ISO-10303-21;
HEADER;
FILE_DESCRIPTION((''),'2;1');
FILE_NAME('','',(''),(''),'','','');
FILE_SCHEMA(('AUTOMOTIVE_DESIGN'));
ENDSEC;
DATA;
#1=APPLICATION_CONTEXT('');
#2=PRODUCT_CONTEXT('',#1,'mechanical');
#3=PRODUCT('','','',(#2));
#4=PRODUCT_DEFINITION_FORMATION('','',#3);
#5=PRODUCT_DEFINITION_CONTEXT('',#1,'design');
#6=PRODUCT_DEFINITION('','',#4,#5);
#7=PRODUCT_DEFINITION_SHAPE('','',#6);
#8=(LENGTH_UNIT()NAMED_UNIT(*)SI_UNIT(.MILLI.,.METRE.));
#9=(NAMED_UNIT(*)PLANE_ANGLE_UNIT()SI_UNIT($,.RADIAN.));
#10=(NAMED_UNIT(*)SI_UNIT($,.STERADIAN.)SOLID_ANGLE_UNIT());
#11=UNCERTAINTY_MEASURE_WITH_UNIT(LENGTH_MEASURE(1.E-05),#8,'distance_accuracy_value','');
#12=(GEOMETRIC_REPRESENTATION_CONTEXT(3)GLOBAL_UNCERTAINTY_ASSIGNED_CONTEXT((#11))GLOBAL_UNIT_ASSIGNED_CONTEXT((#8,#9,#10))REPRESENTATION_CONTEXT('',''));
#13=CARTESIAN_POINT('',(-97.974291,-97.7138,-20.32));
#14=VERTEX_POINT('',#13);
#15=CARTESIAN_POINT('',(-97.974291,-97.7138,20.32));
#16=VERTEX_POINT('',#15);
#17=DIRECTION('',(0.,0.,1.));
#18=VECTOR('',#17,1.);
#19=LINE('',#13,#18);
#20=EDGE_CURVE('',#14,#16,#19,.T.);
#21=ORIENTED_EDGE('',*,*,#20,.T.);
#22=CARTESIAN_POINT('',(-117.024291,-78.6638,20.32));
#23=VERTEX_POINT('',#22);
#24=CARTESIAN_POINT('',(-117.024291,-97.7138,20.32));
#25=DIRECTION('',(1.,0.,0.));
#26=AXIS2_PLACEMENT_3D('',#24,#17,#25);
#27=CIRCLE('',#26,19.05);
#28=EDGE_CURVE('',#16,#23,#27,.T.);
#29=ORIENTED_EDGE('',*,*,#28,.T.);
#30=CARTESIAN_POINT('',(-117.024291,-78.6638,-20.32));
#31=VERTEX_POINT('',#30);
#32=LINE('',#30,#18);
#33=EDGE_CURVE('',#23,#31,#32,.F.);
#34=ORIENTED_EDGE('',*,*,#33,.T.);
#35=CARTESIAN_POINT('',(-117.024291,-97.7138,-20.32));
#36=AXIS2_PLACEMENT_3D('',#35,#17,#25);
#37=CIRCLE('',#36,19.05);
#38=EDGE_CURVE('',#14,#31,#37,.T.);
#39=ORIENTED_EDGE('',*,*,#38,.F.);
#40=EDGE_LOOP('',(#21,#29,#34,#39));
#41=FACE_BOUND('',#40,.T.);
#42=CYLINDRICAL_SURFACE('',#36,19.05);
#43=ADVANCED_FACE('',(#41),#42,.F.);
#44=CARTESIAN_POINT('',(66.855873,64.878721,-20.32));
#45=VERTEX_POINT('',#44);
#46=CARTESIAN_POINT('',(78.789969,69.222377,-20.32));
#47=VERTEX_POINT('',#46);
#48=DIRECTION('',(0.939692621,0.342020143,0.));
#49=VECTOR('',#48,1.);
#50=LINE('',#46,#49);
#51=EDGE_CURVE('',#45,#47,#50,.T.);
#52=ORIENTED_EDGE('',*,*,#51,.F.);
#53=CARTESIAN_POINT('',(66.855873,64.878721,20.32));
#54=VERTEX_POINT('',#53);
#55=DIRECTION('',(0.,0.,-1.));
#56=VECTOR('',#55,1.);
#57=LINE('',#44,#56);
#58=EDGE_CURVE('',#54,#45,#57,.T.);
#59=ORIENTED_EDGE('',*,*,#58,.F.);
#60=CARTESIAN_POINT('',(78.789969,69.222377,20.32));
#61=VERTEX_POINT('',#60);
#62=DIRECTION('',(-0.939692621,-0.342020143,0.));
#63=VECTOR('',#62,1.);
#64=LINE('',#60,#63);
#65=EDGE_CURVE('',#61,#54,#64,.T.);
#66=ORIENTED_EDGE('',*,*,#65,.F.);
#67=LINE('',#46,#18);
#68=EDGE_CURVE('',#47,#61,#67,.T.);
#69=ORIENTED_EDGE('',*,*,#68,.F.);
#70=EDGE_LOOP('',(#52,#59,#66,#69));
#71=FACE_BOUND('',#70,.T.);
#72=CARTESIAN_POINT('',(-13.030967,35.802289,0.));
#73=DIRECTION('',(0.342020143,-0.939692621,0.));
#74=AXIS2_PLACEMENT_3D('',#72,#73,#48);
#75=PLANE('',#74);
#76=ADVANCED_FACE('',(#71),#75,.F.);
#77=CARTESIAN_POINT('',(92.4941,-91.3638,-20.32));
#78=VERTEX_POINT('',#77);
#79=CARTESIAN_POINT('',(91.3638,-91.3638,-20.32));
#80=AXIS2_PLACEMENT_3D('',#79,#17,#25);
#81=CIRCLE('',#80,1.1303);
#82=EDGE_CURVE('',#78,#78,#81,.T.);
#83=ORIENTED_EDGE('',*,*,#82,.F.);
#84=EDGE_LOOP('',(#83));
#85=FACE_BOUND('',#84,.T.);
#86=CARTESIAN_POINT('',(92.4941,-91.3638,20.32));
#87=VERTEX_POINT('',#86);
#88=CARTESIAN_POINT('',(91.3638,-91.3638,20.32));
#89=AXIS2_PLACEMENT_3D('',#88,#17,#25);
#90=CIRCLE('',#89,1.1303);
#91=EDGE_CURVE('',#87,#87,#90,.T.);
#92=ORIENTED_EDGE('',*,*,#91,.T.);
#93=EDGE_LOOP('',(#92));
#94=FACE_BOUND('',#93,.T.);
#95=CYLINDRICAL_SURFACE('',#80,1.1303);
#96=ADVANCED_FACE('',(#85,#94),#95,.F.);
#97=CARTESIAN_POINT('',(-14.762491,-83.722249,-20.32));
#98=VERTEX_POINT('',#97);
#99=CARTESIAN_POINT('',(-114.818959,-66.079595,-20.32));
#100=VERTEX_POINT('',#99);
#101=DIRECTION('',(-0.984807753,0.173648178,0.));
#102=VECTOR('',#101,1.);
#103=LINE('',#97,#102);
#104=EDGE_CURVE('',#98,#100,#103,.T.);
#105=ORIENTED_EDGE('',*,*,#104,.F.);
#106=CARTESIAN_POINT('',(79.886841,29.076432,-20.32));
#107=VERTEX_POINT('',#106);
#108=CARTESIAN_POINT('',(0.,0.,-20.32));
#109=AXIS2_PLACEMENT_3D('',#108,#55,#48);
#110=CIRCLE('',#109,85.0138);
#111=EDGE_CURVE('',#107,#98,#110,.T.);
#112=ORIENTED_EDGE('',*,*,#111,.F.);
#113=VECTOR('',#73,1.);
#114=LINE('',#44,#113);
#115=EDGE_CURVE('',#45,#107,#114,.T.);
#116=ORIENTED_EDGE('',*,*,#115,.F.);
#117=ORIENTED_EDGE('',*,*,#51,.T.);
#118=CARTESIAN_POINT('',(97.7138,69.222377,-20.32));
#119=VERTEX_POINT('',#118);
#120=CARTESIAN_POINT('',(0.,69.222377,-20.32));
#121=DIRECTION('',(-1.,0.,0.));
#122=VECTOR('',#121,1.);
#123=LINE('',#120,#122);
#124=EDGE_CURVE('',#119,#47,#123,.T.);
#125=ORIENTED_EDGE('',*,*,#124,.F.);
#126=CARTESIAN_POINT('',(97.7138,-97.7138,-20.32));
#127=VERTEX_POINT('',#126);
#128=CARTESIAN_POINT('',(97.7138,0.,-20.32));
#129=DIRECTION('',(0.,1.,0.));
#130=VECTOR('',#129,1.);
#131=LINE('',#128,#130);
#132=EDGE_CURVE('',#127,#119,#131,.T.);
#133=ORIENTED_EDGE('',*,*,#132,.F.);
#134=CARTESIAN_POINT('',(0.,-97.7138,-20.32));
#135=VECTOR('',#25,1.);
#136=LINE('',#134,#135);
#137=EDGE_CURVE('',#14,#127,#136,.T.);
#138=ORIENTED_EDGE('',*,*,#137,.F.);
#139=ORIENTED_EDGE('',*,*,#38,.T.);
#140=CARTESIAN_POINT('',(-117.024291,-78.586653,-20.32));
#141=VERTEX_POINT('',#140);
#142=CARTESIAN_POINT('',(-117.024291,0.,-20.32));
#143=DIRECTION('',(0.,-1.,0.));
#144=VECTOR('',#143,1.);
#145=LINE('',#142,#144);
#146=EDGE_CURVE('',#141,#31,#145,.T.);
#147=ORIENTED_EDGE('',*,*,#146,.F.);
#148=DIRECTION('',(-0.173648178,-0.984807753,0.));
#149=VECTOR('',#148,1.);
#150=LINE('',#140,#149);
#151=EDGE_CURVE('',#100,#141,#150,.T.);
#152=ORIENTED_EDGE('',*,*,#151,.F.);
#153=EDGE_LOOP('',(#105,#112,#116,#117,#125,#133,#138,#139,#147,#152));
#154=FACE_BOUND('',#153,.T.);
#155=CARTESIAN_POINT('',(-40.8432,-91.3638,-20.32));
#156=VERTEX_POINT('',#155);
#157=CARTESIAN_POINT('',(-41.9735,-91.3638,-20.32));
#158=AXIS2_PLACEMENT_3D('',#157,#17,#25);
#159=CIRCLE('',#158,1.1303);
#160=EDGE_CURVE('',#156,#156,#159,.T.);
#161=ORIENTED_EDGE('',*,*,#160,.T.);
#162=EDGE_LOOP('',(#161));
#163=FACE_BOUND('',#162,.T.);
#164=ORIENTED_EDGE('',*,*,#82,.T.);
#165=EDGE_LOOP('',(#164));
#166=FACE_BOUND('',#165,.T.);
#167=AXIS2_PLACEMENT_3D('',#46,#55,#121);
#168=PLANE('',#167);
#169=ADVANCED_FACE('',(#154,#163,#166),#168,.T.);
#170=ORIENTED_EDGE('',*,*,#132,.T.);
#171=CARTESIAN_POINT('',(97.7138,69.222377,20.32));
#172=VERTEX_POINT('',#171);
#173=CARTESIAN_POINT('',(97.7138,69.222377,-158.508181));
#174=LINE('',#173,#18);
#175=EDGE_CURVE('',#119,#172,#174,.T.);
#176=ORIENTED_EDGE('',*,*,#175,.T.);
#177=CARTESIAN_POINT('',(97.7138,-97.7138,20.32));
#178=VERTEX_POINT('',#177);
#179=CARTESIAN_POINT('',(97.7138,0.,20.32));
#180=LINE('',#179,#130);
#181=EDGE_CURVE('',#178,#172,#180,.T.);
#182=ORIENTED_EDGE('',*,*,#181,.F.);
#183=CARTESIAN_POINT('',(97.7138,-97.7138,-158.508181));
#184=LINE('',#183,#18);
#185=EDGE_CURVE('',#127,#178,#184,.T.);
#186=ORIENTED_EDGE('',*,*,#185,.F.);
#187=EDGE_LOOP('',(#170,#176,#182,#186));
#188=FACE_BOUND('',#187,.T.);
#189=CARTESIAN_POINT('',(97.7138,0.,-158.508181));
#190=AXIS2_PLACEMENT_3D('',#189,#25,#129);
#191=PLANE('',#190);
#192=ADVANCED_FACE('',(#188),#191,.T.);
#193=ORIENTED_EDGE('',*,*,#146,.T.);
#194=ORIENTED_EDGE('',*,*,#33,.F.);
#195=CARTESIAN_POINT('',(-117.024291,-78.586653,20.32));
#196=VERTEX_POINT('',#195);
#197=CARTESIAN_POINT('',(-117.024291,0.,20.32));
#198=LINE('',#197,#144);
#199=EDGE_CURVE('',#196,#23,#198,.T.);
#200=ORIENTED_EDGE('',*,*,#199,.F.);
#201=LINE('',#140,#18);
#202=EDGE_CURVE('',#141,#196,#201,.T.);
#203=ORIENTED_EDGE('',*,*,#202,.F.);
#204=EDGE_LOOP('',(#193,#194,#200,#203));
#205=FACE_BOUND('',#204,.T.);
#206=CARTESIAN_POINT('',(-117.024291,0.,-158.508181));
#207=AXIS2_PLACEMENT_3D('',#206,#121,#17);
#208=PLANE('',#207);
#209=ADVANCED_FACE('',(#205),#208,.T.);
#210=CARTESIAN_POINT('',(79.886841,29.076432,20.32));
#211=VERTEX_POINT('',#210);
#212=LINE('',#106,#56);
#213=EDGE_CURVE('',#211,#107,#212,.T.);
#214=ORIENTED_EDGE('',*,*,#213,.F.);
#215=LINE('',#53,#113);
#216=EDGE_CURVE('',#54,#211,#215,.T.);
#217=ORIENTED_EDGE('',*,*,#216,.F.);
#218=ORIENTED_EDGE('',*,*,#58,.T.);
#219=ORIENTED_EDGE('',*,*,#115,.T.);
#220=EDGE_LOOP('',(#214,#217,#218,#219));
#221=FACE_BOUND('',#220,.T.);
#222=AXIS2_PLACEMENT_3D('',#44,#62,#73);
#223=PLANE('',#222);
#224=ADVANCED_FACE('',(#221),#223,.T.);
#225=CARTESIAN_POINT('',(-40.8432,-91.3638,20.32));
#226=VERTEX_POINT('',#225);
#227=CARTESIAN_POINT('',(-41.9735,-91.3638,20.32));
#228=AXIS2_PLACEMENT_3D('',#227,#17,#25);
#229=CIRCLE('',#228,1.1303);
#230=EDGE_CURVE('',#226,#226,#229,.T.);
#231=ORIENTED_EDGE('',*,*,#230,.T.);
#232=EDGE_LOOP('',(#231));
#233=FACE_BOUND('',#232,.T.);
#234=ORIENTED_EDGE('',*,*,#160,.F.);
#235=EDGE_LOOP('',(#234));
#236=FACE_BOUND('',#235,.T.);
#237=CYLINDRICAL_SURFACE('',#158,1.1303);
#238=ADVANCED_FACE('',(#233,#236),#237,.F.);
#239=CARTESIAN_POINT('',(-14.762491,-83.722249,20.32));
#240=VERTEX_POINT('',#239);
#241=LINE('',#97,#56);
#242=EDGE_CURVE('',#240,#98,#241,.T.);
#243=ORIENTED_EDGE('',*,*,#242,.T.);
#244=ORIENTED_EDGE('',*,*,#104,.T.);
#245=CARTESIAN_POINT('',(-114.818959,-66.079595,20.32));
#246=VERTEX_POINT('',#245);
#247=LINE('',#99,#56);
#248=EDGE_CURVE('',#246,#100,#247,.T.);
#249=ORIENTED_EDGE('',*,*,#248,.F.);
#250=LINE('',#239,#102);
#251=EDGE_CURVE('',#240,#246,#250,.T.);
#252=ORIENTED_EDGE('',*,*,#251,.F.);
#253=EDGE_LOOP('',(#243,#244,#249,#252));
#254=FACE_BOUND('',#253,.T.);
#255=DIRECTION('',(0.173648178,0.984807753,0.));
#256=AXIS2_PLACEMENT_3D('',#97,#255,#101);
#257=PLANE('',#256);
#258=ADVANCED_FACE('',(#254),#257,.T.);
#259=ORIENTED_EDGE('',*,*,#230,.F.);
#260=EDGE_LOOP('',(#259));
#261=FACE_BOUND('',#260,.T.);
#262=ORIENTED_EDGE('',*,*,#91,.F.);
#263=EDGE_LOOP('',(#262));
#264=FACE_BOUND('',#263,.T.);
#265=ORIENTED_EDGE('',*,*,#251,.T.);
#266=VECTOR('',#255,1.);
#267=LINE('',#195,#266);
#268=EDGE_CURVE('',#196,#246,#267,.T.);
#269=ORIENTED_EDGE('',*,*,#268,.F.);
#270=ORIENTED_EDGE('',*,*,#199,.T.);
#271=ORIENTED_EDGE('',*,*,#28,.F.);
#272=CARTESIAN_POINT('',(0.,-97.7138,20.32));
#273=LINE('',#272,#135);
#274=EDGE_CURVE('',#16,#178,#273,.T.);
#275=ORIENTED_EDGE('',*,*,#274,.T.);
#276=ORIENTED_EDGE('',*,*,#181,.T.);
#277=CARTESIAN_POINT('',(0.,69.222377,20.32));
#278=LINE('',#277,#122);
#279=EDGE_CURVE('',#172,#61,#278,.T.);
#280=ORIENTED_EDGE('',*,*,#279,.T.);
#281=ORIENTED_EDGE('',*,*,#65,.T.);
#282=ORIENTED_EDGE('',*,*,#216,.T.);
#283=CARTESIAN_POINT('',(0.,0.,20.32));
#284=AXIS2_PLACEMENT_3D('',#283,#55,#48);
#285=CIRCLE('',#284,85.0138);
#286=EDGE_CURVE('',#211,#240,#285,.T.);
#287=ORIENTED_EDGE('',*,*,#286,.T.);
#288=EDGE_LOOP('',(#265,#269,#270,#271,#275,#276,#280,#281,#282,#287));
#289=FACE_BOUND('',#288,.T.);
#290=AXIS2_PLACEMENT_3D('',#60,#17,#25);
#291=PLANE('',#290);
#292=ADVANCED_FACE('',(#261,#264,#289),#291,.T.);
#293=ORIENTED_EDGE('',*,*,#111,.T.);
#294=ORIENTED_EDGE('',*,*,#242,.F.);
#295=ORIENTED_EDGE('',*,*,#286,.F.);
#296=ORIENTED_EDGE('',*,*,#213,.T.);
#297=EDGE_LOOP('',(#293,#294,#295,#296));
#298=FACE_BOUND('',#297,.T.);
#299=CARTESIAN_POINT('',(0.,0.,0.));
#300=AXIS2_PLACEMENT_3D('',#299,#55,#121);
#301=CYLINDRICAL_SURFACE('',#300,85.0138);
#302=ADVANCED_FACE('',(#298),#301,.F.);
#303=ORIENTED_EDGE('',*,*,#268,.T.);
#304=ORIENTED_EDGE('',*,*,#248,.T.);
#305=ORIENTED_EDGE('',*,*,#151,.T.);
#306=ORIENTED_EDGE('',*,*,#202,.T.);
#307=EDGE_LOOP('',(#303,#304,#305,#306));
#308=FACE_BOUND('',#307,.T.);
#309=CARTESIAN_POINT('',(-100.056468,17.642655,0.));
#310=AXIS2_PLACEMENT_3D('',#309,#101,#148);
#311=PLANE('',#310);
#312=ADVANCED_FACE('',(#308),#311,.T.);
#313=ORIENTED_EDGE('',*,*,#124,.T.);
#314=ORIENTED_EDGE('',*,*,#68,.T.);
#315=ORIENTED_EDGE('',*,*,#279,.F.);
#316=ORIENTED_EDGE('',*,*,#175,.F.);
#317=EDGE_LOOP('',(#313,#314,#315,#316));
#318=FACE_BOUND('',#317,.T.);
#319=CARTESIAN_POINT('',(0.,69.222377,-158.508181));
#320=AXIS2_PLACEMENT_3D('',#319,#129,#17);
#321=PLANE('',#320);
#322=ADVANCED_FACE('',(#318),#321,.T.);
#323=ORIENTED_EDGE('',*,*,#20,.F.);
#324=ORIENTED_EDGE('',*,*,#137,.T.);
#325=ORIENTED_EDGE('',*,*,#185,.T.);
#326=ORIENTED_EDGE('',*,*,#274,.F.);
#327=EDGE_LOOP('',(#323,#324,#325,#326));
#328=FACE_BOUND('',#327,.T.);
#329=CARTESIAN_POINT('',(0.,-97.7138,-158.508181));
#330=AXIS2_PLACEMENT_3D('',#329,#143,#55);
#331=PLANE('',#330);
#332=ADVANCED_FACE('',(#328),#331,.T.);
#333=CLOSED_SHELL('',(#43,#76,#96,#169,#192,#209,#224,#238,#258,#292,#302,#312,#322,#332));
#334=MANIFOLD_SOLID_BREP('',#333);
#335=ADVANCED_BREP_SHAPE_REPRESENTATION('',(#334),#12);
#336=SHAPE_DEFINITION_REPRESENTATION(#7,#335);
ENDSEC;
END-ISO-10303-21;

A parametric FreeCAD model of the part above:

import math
import FreeCAD as App
import Part
import Sketcher
Q = App.Units.Quantity

doc = App.newDocument("Part")
body = doc.addObject("PartDesign::Body", "Body")

# Sketch on an angled plane
sketch1 = body.newObject("Sketcher::SketchObject", "Sketch")
sketch1.Placement = App.Placement(App.Vector(-117.024291, -78.586653, -20.32), App.Rotation(App.Vector(0.051794909, 0.293743526, 0.954479978), App.Vector(-0.165743709, -0.939979282, 0.298274993), App.Vector(0.984807753, -0.173648178, 0), "ZXY"))
sketch1.addGeometry([
    Part.LineSegment(App.Vector(0, 0, 0), App.Vector(4, -12, 0)),
    Part.LineSegment(App.Vector(4, -12, 0), App.Vector(43, 0, 0)),
    Part.LineSegment(App.Vector(43, 0, 0), App.Vector(39, 12, 0)),
    Part.LineSegment(App.Vector(39, 12, 0), App.Vector(0, 0, 0)),
], False)
sketch1.addConstraint([
    Sketcher.Constraint("Coincident", 0, 2, 1, 1),
    Sketcher.Constraint("Coincident", 1, 2, 2, 1),
    Sketcher.Constraint("Coincident", 2, 2, 3, 1),
    Sketcher.Constraint("Coincident", 3, 2, 0, 1),
    Sketcher.Constraint("Coincident", 3, 2, -1, 1),
    Sketcher.Constraint("PointOnObject", 1, 2, -1),
    Sketcher.Constraint("Perpendicular", 0, 1),
    Sketcher.Constraint("Perpendicular", 1, 2),
    Sketcher.Constraint("Perpendicular", 2, 3),
    Sketcher.Constraint("Distance", 0, Q("0.5 in")),
    Sketcher.Constraint("Distance", 1, Q("1.6 in")),
])

# Sketch on XY plane
sketch2 = body.newObject("Sketcher::SketchObject", "Sketch001")
sketch2.AttachmentSupport = (doc.getObject("XY_Plane"), [""])
sketch2.MapMode = "FlatFace"
sketch2.addGeometry([
    Part.LineSegment(App.Vector(-111, -47, 0), App.Vector(-11, -64, 0)),
    Part.ArcOfCircle(Part.Circle(App.Vector(0, 0, 0), App.Vector(0, 0, 1), 65), math.radians(-100), math.radians(20)),
    Part.LineSegment(App.Vector(61, 22, 0), App.Vector(48, 58, 0)),
], False)
sketch2.addConstraint([
    Sketcher.Constraint("Tangent", 0, 2, 1, 1),
    Sketcher.Constraint("Tangent", 1, 2, 2, 1),
    Sketcher.Constraint("Coincident", 1, 3, -1, 1),
    Sketcher.Constraint("Distance", 0, Q("4 in")),
    Sketcher.Constraint("Angle", 0, Q("-10 deg")),
    Sketcher.Constraint("Angle", 2, Q("110 deg")),
    Sketcher.Constraint("Radius", 1, Q("2.567 in")),
    Sketcher.Constraint("Distance", 2, Q("1.5 in")),
])
doc.recompute()

additivepipe = body.newObject("PartDesign::AdditivePipe", "AdditivePipe")
additivepipe.Profile = sketch1
additivepipe.Spine = (sketch2, ["Edge1", "Edge2", "Edge3"])

# Sketch on XY plane
sketch3 = body.newObject("Sketcher::SketchObject", "Sketch002")
sketch3.AttachmentSupport = (doc.getObject("XY_Plane"), [""])
sketch3.MapMode = "FlatFace"
sketch3.AttachmentOffset = App.Placement(App.Vector(0, 0, 0.8 * 25.4), App.Rotation())
sketch3.addGeometry([
    Part.LineSegment(App.Vector(-17, -96, 0), App.Vector(-117, -79, 0)),  # 0
    Part.LineSegment(App.Vector(-117, -79, 0), App.Vector(-117, -98, 0)),  # 1
    Part.LineSegment(App.Vector(-117, -98, 0), App.Vector(0, -98, 0)),  # 2
    Part.ArcOfCircle(Part.Circle(App.Vector(0, 0, 0), App.Vector(0, 0, 1), 98), math.radians(-100), math.radians(-90)),  # 3
    Part.ArcOfCircle(Part.Circle(App.Vector(0, 0, 0), App.Vector(0, 0, 1), 98), math.radians(-90), math.radians(0)),  # 4
    Part.LineSegment(App.Vector(0, -98, 0), App.Vector(98, -98, 0)),  # 5
    Part.LineSegment(App.Vector(98, -98, 0), App.Vector(98, 0, 0)),  # 6
    Part.ArcOfCircle(Part.Circle(App.Vector(0, 0, 0), App.Vector(0, 0, 1), 98), math.radians(0), math.radians(20)),  # 7
    Part.LineSegment(App.Vector(98, 0, 0), App.Vector(98, 69, 0)),  # 8
    Part.LineSegment(App.Vector(98, 69, 0), App.Vector(79, 69, 0)),  # 9
    Part.LineSegment(App.Vector(79, 69, 0), App.Vector(92, 33, 0)),  # 10
], False)
sketch3.addConstraint([
    Sketcher.Constraint("Coincident", 0, 2, 1, 1),
    Sketcher.Constraint("Coincident", 1, 2, 2, 1),
    Sketcher.Constraint("Tangent", 2, 2, 3, 2),
    Sketcher.Constraint("Tangent", 3, 1, 0, 1),
    Sketcher.Constraint("Tangent", 4, 1, 5, 1),
    Sketcher.Constraint("Coincident", 5, 2, 6, 1),
    Sketcher.Constraint("Tangent", 6, 2, 4, 2),
    Sketcher.Constraint("Tangent", 7, 1, 8, 1),
    Sketcher.Constraint("Coincident", 8, 2, 9, 1),
    Sketcher.Constraint("Coincident", 9, 2, 10, 1),
    Sketcher.Constraint("Tangent", 10, 2, 7, 2),
    Sketcher.Constraint("Vertical", 1),
    Sketcher.Constraint("Horizontal", 2),
    Sketcher.Constraint("Horizontal", 5),
    Sketcher.Constraint("Vertical", 6),
    Sketcher.Constraint("Vertical", 8),
    Sketcher.Constraint("Horizontal", 9),
    Sketcher.Constraint("Coincident", 3, 3, -1, 1),
    Sketcher.Constraint("Coincident", 4, 3, -1, 1),
    Sketcher.Constraint("Coincident", 7, 3, -1, 1),
    Sketcher.Constraint("Equal", 3, 4),
    Sketcher.Constraint("Equal", 4, 7),
    Sketcher.Constraint("Distance", 0, Q("4 in")),
    Sketcher.Constraint("Angle", 0, Q("170 deg")),
    Sketcher.Constraint("Angle", 10, Q("-70 deg")),
    Sketcher.Constraint("Radius", 3, Q("3.847 in")),
    Sketcher.Constraint("Distance", 10, Q("1.5 in")),
])
pad1 = body.newObject("PartDesign::Pad", "Pad")
pad1.Profile = sketch3
pad1.Length = Q("1.6 in")
pad1.Reversed = True

# Sketch on XY plane
sketch4 = body.newObject("Sketcher::SketchObject", "Sketch003")
sketch4.AttachmentSupport = (doc.getObject("XY_Plane"), [""])
sketch4.MapMode = "FlatFace"
sketch4.AttachmentOffset = App.Placement(App.Vector(0, 0, 0.8 * 25.4), App.Rotation())
sketch4.addGeometry([
    Part.Circle(App.Vector(91.4, -91.4, 0), App.Vector(0, 0, 1), 1.1),
    Part.Circle(App.Vector(-42, -91.4, 0), App.Vector(0, 0, 1), 1.1),
], False)
sketch4.addConstraint([
    Sketcher.Constraint("Equal", 0, 1),
    Sketcher.Constraint("Horizontal", 0, 3, 1, 3),
    Sketcher.Constraint("Diameter", 0, Q("0.089 in")),
    Sketcher.Constraint("DistanceX", -1, 1, 0, 3, Q("3.597 in")),
    Sketcher.Constraint("DistanceY", 0, 3, -1, 1, Q("3.597 in")),
    Sketcher.Constraint("DistanceX", 1, 3, -1, 1, Q("1.6525 in")),
])
pocket1 = body.newObject("PartDesign::Pocket", "Pocket")
pocket1.Profile = sketch4
pocket1.Type = "ThroughAll"

# Sketch on XY plane
sketch5 = body.newObject("Sketcher::SketchObject", "Sketch004")
sketch5.AttachmentSupport = (doc.getObject("XY_Plane"), [""])
sketch5.MapMode = "FlatFace"
sketch5.AttachmentOffset = App.Placement(App.Vector(0, 0, 0.8 * 25.4), App.Rotation())
sketch5.addGeometry(Part.Circle(App.Vector(-117, -98, 0), App.Vector(0, 0, 1), 19), False)
sketch5.addConstraint([
    Sketcher.Constraint("Diameter", 0, Q("1.5 in")),
    Sketcher.Constraint("DistanceY", 0, 3, -1, 1, Q("3.847 in")),
    Sketcher.Constraint("DistanceX", 0, 3, -1, 1, 117.024291),
])
pocket2 = body.newObject("PartDesign::Pocket", "Pocket001")
pocket2.Profile = sketch5
pocket2.Type = "ThroughAll"

doc.recompute()
